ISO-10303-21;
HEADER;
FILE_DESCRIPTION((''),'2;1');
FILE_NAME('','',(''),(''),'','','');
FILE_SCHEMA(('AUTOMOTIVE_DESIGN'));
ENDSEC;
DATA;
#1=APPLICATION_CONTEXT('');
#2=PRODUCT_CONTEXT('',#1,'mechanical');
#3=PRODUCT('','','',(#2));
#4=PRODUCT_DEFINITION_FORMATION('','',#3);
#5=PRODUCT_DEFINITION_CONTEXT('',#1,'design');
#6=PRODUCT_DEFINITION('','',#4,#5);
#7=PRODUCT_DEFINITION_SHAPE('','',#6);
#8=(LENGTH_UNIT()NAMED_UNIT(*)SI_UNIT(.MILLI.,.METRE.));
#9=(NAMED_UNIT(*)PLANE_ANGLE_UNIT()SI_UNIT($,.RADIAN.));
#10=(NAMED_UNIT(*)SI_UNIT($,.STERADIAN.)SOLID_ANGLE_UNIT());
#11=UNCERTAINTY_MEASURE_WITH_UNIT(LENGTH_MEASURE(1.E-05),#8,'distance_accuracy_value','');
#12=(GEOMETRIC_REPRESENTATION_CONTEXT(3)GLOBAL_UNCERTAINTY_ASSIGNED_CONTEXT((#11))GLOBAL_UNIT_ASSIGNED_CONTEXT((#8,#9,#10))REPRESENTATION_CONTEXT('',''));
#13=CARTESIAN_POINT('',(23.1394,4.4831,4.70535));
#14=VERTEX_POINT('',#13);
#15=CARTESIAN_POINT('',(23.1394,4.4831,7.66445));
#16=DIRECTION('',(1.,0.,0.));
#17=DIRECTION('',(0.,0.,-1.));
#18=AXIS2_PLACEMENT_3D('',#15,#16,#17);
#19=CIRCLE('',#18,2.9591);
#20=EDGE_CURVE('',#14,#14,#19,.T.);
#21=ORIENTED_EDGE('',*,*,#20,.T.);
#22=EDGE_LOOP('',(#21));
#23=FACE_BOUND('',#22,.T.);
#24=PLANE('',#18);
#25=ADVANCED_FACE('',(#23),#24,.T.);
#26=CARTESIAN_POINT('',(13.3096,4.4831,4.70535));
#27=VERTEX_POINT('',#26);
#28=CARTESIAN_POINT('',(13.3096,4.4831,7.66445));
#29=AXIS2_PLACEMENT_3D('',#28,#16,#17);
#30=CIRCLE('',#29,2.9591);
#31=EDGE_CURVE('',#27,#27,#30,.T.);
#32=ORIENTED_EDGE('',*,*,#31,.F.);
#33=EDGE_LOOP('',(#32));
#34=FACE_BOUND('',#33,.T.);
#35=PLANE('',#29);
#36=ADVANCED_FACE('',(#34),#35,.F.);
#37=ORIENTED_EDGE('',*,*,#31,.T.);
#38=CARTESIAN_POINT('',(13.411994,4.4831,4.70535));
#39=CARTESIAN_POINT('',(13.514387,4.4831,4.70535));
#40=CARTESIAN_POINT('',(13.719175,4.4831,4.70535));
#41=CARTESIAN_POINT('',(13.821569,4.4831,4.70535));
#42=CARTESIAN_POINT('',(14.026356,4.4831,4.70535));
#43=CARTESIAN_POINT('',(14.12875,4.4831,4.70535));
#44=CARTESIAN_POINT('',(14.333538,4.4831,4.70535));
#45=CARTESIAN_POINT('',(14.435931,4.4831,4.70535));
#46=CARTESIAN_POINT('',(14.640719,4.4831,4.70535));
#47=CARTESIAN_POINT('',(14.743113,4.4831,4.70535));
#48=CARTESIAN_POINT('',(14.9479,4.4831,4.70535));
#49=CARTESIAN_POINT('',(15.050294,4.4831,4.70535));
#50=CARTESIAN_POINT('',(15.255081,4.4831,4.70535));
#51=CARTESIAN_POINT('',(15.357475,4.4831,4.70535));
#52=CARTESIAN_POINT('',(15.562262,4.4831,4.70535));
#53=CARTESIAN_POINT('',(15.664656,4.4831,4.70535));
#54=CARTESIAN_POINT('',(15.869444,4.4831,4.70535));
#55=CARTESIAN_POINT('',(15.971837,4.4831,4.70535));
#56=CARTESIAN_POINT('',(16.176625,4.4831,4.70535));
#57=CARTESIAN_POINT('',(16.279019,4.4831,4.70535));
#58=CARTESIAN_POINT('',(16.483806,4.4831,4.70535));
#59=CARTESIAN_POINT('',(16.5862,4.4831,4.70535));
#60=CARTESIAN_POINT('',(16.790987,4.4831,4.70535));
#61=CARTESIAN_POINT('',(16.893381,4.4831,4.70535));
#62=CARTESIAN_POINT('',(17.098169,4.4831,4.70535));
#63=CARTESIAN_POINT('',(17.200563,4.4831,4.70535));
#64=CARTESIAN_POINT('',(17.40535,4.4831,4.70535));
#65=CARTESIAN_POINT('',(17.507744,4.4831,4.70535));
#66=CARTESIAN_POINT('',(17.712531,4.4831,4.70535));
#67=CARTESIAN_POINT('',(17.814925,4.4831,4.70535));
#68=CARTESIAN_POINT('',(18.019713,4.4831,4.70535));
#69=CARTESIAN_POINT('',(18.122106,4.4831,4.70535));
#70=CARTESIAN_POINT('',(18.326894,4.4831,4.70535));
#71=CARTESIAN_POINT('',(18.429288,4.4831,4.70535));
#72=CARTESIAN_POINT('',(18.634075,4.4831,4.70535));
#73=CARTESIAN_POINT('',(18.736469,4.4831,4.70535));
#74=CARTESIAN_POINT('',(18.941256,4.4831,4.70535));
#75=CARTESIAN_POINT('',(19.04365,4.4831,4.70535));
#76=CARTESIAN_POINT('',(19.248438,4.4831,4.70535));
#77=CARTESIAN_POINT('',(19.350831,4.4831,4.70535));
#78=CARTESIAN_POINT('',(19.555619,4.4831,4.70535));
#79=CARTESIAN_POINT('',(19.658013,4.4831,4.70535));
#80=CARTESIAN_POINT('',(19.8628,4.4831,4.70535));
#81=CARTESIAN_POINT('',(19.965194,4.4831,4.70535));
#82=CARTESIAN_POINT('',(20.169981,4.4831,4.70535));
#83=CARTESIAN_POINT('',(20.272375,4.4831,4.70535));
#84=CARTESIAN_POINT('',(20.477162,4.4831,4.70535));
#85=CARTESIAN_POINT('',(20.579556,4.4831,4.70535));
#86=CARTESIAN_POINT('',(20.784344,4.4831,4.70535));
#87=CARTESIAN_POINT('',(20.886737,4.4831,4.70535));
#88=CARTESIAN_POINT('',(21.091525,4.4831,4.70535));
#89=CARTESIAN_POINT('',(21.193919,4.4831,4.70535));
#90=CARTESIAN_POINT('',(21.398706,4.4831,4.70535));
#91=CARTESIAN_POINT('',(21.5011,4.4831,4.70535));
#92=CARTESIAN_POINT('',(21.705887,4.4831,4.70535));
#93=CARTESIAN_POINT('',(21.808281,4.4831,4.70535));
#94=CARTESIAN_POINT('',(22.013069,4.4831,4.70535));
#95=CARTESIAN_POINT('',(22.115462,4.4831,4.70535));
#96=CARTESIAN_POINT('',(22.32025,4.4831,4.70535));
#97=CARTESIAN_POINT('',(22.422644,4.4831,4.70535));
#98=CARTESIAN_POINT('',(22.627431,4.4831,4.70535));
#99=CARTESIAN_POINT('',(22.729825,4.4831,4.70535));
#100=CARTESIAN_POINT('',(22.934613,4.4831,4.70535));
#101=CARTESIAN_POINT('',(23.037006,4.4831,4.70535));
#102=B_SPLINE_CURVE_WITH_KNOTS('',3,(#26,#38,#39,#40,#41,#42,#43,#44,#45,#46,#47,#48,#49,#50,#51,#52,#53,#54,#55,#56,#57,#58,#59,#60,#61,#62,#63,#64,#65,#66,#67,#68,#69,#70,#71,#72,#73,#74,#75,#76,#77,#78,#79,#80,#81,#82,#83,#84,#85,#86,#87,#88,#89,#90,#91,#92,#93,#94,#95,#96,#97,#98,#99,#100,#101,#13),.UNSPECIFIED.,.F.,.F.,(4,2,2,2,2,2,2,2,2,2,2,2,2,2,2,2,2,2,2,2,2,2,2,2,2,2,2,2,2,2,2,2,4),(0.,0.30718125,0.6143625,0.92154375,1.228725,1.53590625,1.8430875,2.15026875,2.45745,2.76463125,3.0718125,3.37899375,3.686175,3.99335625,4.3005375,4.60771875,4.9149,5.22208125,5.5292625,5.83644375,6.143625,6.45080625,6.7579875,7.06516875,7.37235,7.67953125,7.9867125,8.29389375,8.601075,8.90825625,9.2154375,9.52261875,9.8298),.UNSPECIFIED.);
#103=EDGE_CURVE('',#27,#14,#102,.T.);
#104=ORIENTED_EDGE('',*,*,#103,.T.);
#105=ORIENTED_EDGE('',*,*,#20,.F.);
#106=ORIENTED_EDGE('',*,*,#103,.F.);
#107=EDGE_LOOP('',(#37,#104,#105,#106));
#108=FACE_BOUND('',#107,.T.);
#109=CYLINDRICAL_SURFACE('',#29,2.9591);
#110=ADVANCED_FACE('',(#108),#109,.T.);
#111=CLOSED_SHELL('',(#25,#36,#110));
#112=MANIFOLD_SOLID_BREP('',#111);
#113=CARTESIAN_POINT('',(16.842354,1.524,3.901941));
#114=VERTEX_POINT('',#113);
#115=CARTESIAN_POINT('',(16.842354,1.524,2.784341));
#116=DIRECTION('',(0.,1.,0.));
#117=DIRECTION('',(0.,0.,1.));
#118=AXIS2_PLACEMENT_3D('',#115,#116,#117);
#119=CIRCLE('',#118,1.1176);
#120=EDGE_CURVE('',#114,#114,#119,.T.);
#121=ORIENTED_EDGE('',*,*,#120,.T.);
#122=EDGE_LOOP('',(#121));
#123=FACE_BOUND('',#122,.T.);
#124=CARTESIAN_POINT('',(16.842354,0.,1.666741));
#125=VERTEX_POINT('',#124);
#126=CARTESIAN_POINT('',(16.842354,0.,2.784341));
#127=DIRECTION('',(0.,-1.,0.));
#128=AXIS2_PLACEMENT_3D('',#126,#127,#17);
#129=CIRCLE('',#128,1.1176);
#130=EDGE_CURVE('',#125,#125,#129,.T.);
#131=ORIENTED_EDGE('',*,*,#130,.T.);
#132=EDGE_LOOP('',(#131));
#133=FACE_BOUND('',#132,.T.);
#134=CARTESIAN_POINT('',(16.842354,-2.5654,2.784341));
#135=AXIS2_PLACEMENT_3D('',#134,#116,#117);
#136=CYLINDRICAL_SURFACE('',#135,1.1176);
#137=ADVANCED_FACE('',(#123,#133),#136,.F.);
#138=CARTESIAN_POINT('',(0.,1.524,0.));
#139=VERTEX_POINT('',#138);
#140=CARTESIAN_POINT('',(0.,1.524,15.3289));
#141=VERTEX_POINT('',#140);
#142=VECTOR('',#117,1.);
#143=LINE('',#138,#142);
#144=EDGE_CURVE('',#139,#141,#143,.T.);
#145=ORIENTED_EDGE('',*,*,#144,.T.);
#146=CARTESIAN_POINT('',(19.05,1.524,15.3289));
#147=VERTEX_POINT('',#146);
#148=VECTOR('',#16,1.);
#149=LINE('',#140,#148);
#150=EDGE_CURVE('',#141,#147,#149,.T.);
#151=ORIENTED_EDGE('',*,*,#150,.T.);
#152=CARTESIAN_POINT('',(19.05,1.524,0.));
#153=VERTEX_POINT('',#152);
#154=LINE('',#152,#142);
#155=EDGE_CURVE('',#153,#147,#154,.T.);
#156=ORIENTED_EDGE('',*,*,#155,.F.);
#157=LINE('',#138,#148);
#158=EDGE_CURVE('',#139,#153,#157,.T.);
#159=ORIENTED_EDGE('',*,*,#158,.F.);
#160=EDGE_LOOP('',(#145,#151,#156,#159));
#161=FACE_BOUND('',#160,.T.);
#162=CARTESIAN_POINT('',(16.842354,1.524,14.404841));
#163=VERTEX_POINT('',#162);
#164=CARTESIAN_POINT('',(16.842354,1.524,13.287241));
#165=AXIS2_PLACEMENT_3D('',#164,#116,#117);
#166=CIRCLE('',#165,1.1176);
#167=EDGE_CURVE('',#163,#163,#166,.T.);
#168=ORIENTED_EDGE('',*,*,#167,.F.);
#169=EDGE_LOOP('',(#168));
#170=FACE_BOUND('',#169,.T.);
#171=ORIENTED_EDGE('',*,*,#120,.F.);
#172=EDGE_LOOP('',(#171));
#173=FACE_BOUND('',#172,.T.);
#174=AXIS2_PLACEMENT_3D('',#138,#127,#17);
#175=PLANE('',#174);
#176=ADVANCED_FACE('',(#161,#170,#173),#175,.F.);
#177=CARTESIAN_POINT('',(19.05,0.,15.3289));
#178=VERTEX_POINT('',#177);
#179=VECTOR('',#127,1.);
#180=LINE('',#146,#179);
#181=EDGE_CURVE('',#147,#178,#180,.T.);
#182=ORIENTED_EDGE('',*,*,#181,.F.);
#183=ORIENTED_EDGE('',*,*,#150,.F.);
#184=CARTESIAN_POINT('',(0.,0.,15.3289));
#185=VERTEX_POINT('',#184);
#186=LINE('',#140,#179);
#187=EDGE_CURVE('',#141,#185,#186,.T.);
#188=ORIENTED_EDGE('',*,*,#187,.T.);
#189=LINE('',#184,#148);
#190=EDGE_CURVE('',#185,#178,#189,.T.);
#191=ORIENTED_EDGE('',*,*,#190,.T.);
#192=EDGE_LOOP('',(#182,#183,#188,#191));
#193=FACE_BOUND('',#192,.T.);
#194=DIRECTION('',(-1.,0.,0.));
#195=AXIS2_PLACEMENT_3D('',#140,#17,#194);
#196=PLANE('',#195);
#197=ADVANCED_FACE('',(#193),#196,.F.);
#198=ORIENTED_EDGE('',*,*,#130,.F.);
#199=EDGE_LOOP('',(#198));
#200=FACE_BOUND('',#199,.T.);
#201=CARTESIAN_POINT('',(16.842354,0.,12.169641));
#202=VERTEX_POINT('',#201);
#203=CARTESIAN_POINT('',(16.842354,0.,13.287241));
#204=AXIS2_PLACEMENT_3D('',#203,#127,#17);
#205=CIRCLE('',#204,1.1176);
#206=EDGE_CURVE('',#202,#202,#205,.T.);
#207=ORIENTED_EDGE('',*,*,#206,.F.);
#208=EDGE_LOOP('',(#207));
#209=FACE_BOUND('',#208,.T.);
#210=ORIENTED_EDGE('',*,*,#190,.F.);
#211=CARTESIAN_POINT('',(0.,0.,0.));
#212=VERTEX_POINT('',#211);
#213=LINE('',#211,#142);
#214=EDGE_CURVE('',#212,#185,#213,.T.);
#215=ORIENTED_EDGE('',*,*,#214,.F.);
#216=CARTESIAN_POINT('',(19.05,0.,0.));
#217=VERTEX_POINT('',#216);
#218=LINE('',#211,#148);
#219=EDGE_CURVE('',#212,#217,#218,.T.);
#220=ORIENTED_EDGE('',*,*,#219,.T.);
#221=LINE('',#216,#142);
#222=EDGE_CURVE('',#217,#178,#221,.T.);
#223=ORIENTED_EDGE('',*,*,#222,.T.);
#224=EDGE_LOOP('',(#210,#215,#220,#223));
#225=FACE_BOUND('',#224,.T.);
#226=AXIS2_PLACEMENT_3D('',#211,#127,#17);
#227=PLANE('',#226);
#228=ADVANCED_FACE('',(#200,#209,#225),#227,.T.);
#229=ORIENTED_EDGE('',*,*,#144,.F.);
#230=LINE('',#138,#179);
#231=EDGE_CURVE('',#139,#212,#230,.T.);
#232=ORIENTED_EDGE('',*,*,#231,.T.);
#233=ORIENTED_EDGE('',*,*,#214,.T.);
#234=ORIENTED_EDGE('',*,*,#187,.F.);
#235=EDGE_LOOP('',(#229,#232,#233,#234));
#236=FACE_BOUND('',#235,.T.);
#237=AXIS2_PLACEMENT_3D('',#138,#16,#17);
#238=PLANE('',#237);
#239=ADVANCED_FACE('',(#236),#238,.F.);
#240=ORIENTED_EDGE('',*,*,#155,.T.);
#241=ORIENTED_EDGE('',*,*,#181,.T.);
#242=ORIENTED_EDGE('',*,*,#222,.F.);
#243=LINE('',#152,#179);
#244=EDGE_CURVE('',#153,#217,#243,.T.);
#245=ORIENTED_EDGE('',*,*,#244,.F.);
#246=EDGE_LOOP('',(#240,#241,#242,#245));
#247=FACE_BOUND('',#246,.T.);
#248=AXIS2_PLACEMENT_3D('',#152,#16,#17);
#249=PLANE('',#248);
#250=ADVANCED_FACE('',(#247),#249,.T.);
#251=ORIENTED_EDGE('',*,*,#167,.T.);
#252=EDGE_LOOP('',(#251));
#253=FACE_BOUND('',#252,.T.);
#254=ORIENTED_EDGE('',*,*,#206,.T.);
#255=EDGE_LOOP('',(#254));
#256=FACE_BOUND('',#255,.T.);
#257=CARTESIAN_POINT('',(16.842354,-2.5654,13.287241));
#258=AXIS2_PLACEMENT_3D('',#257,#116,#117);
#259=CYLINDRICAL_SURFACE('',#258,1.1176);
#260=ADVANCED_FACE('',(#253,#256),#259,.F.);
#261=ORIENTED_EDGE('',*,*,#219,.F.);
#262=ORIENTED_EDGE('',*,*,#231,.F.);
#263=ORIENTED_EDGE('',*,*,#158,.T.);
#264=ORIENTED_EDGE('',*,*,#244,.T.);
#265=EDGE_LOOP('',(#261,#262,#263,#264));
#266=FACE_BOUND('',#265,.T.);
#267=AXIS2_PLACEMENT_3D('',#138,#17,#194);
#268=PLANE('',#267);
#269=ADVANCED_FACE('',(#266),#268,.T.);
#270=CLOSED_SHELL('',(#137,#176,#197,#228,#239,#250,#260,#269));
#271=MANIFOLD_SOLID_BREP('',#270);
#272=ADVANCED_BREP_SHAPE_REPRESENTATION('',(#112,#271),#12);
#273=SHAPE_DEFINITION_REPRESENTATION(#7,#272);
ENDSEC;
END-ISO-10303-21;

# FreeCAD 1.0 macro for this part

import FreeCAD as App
import Part
import Sketcher
from FreeCAD import Vector
Q = App.Units.Quantity

doc = App.newDocument("Part")
body = doc.addObject("PartDesign::Body", "Body")

sketch1 = body.newObject("Sketcher::SketchObject", "Sketch")
sketch1.AttachmentSupport = (doc.getObject("XZ_Plane"), [""])
sketch1.MapMode = "FlatFace"
sketch1.addGeometry([
    Part.LineSegment(Vector(0, 0, 0), Vector(0, 15.3289, 0)),
    Part.LineSegment(Vector(0, 15.3289, 0), Vector(19.05, 15.3289, 0)),
    Part.LineSegment(Vector(19.05, 15.3289, 0), Vector(19.05, 0, 0)),
    Part.LineSegment(Vector(19.05, 0, 0), Vector(0, 0, 0)),
], False)
sketch1.addConstraint([
    Sketcher.Constraint("Coincident", 0, 2, 1, 1),
    Sketcher.Constraint("Coincident", 1, 2, 2, 1),
    Sketcher.Constraint("Coincident", 2, 2, 3, 1),
    Sketcher.Constraint("Coincident", 3, 2, 0, 1),
    Sketcher.Constraint("Vertical", 0),
    Sketcher.Constraint("Horizontal", 1),
    Sketcher.Constraint("Vertical", 2),
    Sketcher.Constraint("Horizontal", 3),
    Sketcher.Constraint("Coincident", 3, 2, -1, 1),
    Sketcher.Constraint("DistanceX", 1, 1, 1, 2, Q("0.75 in")),
    Sketcher.Constraint("DistanceY", 0, 1, 0, 2, Q("0.6035 in")),
])
pad1 = body.newObject("PartDesign::Pad", "Pad")
pad1.Profile = sketch1
pad1.Length = Q("0.06 in")
pad1.Reversed = True

sketch2 = body.newObject("Sketcher::SketchObject", "Sketch001")
sketch2.AttachmentSupport = (doc.getObject("XZ_Plane"), [""])
sketch2.MapMode = "FlatFace"
sketch2.AttachmentOffset = App.Placement(Vector(0, 0, -0.06 * 25.4), App.Rotation())
sketch2.addGeometry([
    Part.Circle(Vector(16.842354, 13.287241, 0), Vector(0, 0, 1), 1.1176),
    Part.Circle(Vector(16.842354, 2.784341, 0), Vector(0, 0, 1), 1.1176),
], False)
sketch2.addConstraint([
    Sketcher.Constraint("Equal", 0, 1),
    Sketcher.Constraint("Vertical", 0, 3, 1, 3),
    Sketcher.Constraint("Diameter", 0, Q("0.088 in")),
    Sketcher.Constraint("DistanceY", 1, 3, 0, 3, Q("0.4135 in")),
    Sketcher.Constraint("DistanceY", -1, 1, 0, 3, Q("13.287241 mm")),
    Sketcher.Constraint("DistanceX", -1, 1, 0, 3, Q("16.842354 mm")),
])
pocket1 = body.newObject("PartDesign::Pocket", "Pocket")
pocket1.Profile = sketch2
pocket1.Length = Q("0.161 in")
pocket1.Reversed = True
body2 = doc.addObject("PartDesign::Body", "Body001")

sketch3 = body2.newObject("Sketcher::SketchObject", "Sketch002")
sketch3.AttachmentSupport = (doc.getObject("YZ_Plane001"), [""])
sketch3.MapMode = "FlatFace"
sketch3.AttachmentOffset = App.Placement(Vector(0, 0, 0.75 * 25.4), App.Rotation())
sketch3.addGeometry(Part.Circle(Vector(4.4831, 7.66445, 0), Vector(0, 0, 1), 2.9591), False)
sketch3.addConstraint([
    Sketcher.Constraint("Diameter", 0, Q("0.233 in")),
    Sketcher.Constraint("DistanceX", -1, 1, 0, 3, Q("0.1765 in")),
    Sketcher.Constraint("DistanceY", -1, 1, 0, 3, Q("7.66445 mm")),
])
pad2 = body2.newObject("PartDesign::Pad", "Pad001")
pad2.Profile = sketch3
pad2.Type = "TwoLengths"
pad2.Length = Q("0.161 in")
pad2.Length2 = Q("0.226 in")

doc.recompute()
